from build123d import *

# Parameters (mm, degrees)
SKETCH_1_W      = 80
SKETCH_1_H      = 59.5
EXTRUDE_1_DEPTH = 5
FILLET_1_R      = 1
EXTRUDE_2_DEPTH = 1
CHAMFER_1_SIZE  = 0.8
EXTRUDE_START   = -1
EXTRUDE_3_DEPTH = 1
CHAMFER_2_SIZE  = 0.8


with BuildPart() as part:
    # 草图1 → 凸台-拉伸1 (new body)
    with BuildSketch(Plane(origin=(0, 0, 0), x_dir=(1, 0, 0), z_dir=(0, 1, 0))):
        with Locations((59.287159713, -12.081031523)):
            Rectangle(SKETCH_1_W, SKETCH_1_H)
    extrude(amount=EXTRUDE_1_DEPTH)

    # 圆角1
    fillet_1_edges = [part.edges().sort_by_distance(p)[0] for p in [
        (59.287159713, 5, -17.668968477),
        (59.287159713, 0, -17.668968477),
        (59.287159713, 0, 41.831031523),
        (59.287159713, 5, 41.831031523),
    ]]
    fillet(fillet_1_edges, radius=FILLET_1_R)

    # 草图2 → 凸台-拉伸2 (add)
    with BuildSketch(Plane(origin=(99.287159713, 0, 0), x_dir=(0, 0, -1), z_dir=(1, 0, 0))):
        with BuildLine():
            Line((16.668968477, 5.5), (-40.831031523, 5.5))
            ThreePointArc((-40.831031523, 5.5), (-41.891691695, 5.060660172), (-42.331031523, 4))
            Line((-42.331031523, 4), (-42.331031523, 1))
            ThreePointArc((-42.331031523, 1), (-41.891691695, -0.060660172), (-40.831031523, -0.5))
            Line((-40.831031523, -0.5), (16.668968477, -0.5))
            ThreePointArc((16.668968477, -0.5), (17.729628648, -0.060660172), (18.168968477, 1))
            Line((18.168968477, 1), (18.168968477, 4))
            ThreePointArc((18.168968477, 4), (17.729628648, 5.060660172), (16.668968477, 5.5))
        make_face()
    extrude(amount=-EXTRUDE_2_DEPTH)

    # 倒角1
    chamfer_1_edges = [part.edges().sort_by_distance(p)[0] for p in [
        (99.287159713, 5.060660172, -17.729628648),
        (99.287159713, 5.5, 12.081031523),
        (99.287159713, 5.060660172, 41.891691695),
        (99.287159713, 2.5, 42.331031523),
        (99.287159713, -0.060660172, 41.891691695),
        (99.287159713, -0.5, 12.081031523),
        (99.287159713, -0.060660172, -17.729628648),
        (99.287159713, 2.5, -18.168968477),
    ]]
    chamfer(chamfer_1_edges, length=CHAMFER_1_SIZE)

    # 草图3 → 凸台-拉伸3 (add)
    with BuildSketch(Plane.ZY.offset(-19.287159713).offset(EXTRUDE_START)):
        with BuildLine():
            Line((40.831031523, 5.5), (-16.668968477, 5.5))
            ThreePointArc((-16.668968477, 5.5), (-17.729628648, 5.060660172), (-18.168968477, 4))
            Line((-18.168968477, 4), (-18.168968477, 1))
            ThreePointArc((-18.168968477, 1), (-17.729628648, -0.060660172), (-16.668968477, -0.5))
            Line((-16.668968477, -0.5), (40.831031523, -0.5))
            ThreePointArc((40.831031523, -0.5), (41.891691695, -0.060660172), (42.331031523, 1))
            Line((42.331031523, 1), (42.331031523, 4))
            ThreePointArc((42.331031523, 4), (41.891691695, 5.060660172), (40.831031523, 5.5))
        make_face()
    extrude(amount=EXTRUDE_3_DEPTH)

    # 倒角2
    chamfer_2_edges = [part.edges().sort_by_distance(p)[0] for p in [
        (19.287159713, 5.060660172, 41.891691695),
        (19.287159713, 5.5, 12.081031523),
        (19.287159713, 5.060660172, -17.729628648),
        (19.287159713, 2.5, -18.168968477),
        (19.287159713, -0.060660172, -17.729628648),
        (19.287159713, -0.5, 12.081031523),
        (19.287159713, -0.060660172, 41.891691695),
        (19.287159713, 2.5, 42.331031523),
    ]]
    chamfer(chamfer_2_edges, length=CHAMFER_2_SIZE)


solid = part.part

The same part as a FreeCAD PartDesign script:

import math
import FreeCAD as App
import Part
import Sketcher
from FreeCAD import Vector


def edges_at(feature, points):
    """Names of the edges that pass closest to the given points."""
    edges = feature.Shape.Edges
    near = lambda p: min(range(len(edges)), key=lambda i: edges[i].distToShape(Part.Vertex(*p))[0])
    return sorted({f"Edge{near(p) + 1}" for p in points})


def add_polygon(sketch, points):
    """Adds a closed chain of lines whose ends are joined by coincident constraints."""
    first, n = sketch.GeometryCount, len(points)
    for a, b in zip(points, points[1:] + points[:1]):
        sketch.addGeometry(Part.LineSegment(App.Vector(*a, 0), App.Vector(*b, 0)), False)
    for i in range(n):
        sketch.addConstraint(Sketcher.Constraint("Coincident", first + i, 2, first + (i + 1) % n, 1))

doc = App.newDocument("Part")
body = doc.addObject("PartDesign::Body", "Body")

# Sketch on XZ plane
sketch1 = body.newObject("Sketcher::SketchObject", "Sketch")
sketch1.AttachmentSupport = (doc.getObject("XZ_Plane"), [""])
sketch1.MapMode = "FlatFace"
add_polygon(sketch1, [(19, -18), (19, 42), (99, 42), (99, -18)])  # lines 0-3
sketch1.addConstraint([
    Sketcher.Constraint("Vertical", 0),
    Sketcher.Constraint("Horizontal", 1),
    Sketcher.Constraint("Vertical", 2),
    Sketcher.Constraint("Horizontal", 3),
    Sketcher.Constraint("DistanceX", 1, 1, 1, 2, 80.0),
    Sketcher.Constraint("DistanceY", 0, 1, 0, 2, 59.5),
    Sketcher.Constraint("DistanceX", -1, 1, 0, 2, 19.28716),
    Sketcher.Constraint("DistanceY", -1, 1, 0, 2, 41.831032),
])
pad1 = body.newObject("PartDesign::Pad", "Pad")
pad1.Profile = sketch1
pad1.Length = 5
pad1.Reversed = True
doc.recompute()

fillet = body.newObject("PartDesign::Fillet", "Fillet")
fillet.Base = (pad1, edges_at(pad1, [
    (59.287, 5, -17.669),
    (59.287, 0, -17.669),
    (59.287, 0, 41.831),
    (59.287, 5, 41.831),
]))
fillet.Radius = 1

# Sketch on YZ plane
sketch2 = body.newObject("Sketcher::SketchObject", "Sketch001")
sketch2.AttachmentSupport = (doc.getObject("YZ_Plane"), [""])
sketch2.MapMode = "FlatFace"
sketch2.AttachmentOffset = App.Placement(Vector(0, 0, 99.28716), App.Rotation())
sketch2.addGeometry([
    Part.LineSegment(Vector(5.5, -16.7, 0), Vector(5.5, 40.8, 0)),  # 0
    Part.ArcOfCircle(Part.Circle(Vector(4, 40.8, 0), Vector(0, 0, 1), 1.5), math.radians(0), math.radians(90)),  # 1
    Part.LineSegment(Vector(4, 42.3, 0), Vector(1, 42.3, 0)),  # 2
    Part.ArcOfCircle(Part.Circle(Vector(1, 40.8, 0), Vector(0, 0, 1), 1.5), math.radians(90), math.radians(180)),  # 3
    Part.LineSegment(Vector(-0.5, 40.8, 0), Vector(-0.5, -16.7, 0)),  # 4
    Part.ArcOfCircle(Part.Circle(Vector(1, -16.7, 0), Vector(0, 0, 1), 1.5), math.radians(-180), math.radians(-90)),  # 5
    Part.LineSegment(Vector(1, -18.2, 0), Vector(4, -18.2, 0)),  # 6
    Part.ArcOfCircle(Part.Circle(Vector(4, -16.7, 0), Vector(0, 0, 1), 1.5), math.radians(-90), math.radians(0)),  # 7
], False)
sketch2.addConstraint([
    Sketcher.Constraint("Tangent", 0, 2, 1, 1),
    Sketcher.Constraint("Tangent", 1, 2, 2, 1),
    Sketcher.Constraint("Tangent", 2, 2, 3, 1),
    Sketcher.Constraint("Tangent", 3, 2, 4, 1),
    Sketcher.Constraint("Tangent", 4, 2, 5, 1),
    Sketcher.Constraint("Tangent", 5, 2, 6, 1),
    Sketcher.Constraint("Tangent", 6, 2, 7, 1),
    Sketcher.Constraint("Tangent", 7, 2, 0, 1),
    Sketcher.Constraint("Vertical", 0),
    Sketcher.Constraint("Horizontal", 2),
    Sketcher.Constraint("Vertical", 4),
    Sketcher.Constraint("Horizontal", 6),
    Sketcher.Constraint("Equal", 1, 3),
    Sketcher.Constraint("Equal", 3, 5),
    Sketcher.Constraint("Equal", 5, 7),
    Sketcher.Constraint("Radius", 1, 1.5),
    Sketcher.Constraint("DistanceX", 2, 2, 2, 1, 3.0),
    Sketcher.Constraint("DistanceY", 0, 1, 0, 2, 57.5),
    Sketcher.Constraint("DistanceX", -1, 1, 1, 3, 4.0),
    Sketcher.Constraint("DistanceY", -1, 1, 1, 3, 40.831032),
])
pad2 = body.newObject("PartDesign::Pad", "Pad001")
pad2.Profile = sketch2
pad2.Length = 1
pad2.Reversed = True
doc.recompute()

chamfer = body.newObject("PartDesign::Chamfer", "Chamfer")
chamfer.Base = (pad2, edges_at(pad2, [
    (99.287, 5.061, -17.73),
    (99.287, 5.5, 12.081),
    (99.287, 5.061, 41.892),
    (99.287, 2.5, 42.331),
    (99.287, -0.061, 41.892),
    (99.287, -0.5, 12.081),
    (99.287, -0.061, -17.73),
    (99.287, 2.5, -18.169),
]))
chamfer.Size = 0.8

# Sketch on YZ plane
sketch3 = body.newObject("Sketcher::SketchObject", "Sketch002")
sketch3.AttachmentSupport = (doc.getObject("YZ_Plane"), [""])
sketch3.MapMode = "FlatFace"
sketch3.AttachmentOffset = App.Placement(Vector(0, 0, 20.28716), App.Rotation())
sketch3.addGeometry([
    Part.LineSegment(Vector(5.5, 40.8, 0), Vector(5.5, -16.7, 0)),  # 0
    Part.ArcOfCircle(Part.Circle(Vector(4, -16.7, 0), Vector(0, 0, 1), 1.5), math.radians(-90), math.radians(0)),  # 1
    Part.LineSegment(Vector(4, -18.2, 0), Vector(1, -18.2, 0)),  # 2
    Part.ArcOfCircle(Part.Circle(Vector(1, -16.7, 0), Vector(0, 0, 1), 1.5), math.radians(-180), math.radians(-90)),  # 3
    Part.LineSegment(Vector(-0.5, -16.7, 0), Vector(-0.5, 40.8, 0)),  # 4
    Part.ArcOfCircle(Part.Circle(Vector(1, 40.8, 0), Vector(0, 0, 1), 1.5), math.radians(90), math.radians(180)),  # 5
    Part.LineSegment(Vector(1, 42.3, 0), Vector(4, 42.3, 0)),  # 6
    Part.ArcOfCircle(Part.Circle(Vector(4, 40.8, 0), Vector(0, 0, 1), 1.5), math.radians(0), math.radians(90)),  # 7
], False)
sketch3.addConstraint([
    Sketcher.Constraint("Tangent", 0, 2, 1, 2),
    Sketcher.Constraint("Tangent", 1, 1, 2, 1),
    Sketcher.Constraint("Tangent", 2, 2, 3, 2),
    Sketcher.Constraint("Tangent", 3, 1, 4, 1),
    Sketcher.Constraint("Tangent", 4, 2, 5, 2),
    Sketcher.Constraint("Tangent", 5, 1, 6, 1),
    Sketcher.Constraint("Tangent", 6, 2, 7, 2),
    Sketcher.Constraint("Tangent", 7, 1, 0, 1),
    Sketcher.Constraint("Vertical", 0),
    Sketcher.Constraint("Horizontal", 2),
    Sketcher.Constraint("Vertical", 4),
    Sketcher.Constraint("Horizontal", 6),
    Sketcher.Constraint("Equal", 1, 3),
    Sketcher.Constraint("Equal", 3, 5),
    Sketcher.Constraint("Equal", 5, 7),
    Sketcher.Constraint("Radius", 1, 1.5),
    Sketcher.Constraint("DistanceX", 2, 2, 2, 1, 3.0),
    Sketcher.Constraint("DistanceY", 0, 2, 0, 1, 57.5),
    Sketcher.Constraint("DistanceX", -1, 1, 1, 3, 4.0),
    Sketcher.Constraint("DistanceY", 1, 3, -1, 1, 16.668968),
])
pad3 = body.newObject("PartDesign::Pad", "Pad002")
pad3.Profile = sketch3
pad3.Length = 1
pad3.Reversed = True
doc.recompute()

chamfer2 = body.newObject("PartDesign::Chamfer", "Chamfer001")
chamfer2.Base = (pad3, edges_at(pad3, [
    (19.287, 5.061, 41.892),
    (19.287, 5.5, 12.081),
    (19.287, 5.061, -17.73),
    (19.287, 2.5, -18.169),
    (19.287, -0.061, -17.73),
    (19.287, -0.5, 12.081),
    (19.287, -0.061, 41.892),
    (19.287, 2.5, 42.331),
]))
chamfer2.Size = 0.8

doc.recompute()
